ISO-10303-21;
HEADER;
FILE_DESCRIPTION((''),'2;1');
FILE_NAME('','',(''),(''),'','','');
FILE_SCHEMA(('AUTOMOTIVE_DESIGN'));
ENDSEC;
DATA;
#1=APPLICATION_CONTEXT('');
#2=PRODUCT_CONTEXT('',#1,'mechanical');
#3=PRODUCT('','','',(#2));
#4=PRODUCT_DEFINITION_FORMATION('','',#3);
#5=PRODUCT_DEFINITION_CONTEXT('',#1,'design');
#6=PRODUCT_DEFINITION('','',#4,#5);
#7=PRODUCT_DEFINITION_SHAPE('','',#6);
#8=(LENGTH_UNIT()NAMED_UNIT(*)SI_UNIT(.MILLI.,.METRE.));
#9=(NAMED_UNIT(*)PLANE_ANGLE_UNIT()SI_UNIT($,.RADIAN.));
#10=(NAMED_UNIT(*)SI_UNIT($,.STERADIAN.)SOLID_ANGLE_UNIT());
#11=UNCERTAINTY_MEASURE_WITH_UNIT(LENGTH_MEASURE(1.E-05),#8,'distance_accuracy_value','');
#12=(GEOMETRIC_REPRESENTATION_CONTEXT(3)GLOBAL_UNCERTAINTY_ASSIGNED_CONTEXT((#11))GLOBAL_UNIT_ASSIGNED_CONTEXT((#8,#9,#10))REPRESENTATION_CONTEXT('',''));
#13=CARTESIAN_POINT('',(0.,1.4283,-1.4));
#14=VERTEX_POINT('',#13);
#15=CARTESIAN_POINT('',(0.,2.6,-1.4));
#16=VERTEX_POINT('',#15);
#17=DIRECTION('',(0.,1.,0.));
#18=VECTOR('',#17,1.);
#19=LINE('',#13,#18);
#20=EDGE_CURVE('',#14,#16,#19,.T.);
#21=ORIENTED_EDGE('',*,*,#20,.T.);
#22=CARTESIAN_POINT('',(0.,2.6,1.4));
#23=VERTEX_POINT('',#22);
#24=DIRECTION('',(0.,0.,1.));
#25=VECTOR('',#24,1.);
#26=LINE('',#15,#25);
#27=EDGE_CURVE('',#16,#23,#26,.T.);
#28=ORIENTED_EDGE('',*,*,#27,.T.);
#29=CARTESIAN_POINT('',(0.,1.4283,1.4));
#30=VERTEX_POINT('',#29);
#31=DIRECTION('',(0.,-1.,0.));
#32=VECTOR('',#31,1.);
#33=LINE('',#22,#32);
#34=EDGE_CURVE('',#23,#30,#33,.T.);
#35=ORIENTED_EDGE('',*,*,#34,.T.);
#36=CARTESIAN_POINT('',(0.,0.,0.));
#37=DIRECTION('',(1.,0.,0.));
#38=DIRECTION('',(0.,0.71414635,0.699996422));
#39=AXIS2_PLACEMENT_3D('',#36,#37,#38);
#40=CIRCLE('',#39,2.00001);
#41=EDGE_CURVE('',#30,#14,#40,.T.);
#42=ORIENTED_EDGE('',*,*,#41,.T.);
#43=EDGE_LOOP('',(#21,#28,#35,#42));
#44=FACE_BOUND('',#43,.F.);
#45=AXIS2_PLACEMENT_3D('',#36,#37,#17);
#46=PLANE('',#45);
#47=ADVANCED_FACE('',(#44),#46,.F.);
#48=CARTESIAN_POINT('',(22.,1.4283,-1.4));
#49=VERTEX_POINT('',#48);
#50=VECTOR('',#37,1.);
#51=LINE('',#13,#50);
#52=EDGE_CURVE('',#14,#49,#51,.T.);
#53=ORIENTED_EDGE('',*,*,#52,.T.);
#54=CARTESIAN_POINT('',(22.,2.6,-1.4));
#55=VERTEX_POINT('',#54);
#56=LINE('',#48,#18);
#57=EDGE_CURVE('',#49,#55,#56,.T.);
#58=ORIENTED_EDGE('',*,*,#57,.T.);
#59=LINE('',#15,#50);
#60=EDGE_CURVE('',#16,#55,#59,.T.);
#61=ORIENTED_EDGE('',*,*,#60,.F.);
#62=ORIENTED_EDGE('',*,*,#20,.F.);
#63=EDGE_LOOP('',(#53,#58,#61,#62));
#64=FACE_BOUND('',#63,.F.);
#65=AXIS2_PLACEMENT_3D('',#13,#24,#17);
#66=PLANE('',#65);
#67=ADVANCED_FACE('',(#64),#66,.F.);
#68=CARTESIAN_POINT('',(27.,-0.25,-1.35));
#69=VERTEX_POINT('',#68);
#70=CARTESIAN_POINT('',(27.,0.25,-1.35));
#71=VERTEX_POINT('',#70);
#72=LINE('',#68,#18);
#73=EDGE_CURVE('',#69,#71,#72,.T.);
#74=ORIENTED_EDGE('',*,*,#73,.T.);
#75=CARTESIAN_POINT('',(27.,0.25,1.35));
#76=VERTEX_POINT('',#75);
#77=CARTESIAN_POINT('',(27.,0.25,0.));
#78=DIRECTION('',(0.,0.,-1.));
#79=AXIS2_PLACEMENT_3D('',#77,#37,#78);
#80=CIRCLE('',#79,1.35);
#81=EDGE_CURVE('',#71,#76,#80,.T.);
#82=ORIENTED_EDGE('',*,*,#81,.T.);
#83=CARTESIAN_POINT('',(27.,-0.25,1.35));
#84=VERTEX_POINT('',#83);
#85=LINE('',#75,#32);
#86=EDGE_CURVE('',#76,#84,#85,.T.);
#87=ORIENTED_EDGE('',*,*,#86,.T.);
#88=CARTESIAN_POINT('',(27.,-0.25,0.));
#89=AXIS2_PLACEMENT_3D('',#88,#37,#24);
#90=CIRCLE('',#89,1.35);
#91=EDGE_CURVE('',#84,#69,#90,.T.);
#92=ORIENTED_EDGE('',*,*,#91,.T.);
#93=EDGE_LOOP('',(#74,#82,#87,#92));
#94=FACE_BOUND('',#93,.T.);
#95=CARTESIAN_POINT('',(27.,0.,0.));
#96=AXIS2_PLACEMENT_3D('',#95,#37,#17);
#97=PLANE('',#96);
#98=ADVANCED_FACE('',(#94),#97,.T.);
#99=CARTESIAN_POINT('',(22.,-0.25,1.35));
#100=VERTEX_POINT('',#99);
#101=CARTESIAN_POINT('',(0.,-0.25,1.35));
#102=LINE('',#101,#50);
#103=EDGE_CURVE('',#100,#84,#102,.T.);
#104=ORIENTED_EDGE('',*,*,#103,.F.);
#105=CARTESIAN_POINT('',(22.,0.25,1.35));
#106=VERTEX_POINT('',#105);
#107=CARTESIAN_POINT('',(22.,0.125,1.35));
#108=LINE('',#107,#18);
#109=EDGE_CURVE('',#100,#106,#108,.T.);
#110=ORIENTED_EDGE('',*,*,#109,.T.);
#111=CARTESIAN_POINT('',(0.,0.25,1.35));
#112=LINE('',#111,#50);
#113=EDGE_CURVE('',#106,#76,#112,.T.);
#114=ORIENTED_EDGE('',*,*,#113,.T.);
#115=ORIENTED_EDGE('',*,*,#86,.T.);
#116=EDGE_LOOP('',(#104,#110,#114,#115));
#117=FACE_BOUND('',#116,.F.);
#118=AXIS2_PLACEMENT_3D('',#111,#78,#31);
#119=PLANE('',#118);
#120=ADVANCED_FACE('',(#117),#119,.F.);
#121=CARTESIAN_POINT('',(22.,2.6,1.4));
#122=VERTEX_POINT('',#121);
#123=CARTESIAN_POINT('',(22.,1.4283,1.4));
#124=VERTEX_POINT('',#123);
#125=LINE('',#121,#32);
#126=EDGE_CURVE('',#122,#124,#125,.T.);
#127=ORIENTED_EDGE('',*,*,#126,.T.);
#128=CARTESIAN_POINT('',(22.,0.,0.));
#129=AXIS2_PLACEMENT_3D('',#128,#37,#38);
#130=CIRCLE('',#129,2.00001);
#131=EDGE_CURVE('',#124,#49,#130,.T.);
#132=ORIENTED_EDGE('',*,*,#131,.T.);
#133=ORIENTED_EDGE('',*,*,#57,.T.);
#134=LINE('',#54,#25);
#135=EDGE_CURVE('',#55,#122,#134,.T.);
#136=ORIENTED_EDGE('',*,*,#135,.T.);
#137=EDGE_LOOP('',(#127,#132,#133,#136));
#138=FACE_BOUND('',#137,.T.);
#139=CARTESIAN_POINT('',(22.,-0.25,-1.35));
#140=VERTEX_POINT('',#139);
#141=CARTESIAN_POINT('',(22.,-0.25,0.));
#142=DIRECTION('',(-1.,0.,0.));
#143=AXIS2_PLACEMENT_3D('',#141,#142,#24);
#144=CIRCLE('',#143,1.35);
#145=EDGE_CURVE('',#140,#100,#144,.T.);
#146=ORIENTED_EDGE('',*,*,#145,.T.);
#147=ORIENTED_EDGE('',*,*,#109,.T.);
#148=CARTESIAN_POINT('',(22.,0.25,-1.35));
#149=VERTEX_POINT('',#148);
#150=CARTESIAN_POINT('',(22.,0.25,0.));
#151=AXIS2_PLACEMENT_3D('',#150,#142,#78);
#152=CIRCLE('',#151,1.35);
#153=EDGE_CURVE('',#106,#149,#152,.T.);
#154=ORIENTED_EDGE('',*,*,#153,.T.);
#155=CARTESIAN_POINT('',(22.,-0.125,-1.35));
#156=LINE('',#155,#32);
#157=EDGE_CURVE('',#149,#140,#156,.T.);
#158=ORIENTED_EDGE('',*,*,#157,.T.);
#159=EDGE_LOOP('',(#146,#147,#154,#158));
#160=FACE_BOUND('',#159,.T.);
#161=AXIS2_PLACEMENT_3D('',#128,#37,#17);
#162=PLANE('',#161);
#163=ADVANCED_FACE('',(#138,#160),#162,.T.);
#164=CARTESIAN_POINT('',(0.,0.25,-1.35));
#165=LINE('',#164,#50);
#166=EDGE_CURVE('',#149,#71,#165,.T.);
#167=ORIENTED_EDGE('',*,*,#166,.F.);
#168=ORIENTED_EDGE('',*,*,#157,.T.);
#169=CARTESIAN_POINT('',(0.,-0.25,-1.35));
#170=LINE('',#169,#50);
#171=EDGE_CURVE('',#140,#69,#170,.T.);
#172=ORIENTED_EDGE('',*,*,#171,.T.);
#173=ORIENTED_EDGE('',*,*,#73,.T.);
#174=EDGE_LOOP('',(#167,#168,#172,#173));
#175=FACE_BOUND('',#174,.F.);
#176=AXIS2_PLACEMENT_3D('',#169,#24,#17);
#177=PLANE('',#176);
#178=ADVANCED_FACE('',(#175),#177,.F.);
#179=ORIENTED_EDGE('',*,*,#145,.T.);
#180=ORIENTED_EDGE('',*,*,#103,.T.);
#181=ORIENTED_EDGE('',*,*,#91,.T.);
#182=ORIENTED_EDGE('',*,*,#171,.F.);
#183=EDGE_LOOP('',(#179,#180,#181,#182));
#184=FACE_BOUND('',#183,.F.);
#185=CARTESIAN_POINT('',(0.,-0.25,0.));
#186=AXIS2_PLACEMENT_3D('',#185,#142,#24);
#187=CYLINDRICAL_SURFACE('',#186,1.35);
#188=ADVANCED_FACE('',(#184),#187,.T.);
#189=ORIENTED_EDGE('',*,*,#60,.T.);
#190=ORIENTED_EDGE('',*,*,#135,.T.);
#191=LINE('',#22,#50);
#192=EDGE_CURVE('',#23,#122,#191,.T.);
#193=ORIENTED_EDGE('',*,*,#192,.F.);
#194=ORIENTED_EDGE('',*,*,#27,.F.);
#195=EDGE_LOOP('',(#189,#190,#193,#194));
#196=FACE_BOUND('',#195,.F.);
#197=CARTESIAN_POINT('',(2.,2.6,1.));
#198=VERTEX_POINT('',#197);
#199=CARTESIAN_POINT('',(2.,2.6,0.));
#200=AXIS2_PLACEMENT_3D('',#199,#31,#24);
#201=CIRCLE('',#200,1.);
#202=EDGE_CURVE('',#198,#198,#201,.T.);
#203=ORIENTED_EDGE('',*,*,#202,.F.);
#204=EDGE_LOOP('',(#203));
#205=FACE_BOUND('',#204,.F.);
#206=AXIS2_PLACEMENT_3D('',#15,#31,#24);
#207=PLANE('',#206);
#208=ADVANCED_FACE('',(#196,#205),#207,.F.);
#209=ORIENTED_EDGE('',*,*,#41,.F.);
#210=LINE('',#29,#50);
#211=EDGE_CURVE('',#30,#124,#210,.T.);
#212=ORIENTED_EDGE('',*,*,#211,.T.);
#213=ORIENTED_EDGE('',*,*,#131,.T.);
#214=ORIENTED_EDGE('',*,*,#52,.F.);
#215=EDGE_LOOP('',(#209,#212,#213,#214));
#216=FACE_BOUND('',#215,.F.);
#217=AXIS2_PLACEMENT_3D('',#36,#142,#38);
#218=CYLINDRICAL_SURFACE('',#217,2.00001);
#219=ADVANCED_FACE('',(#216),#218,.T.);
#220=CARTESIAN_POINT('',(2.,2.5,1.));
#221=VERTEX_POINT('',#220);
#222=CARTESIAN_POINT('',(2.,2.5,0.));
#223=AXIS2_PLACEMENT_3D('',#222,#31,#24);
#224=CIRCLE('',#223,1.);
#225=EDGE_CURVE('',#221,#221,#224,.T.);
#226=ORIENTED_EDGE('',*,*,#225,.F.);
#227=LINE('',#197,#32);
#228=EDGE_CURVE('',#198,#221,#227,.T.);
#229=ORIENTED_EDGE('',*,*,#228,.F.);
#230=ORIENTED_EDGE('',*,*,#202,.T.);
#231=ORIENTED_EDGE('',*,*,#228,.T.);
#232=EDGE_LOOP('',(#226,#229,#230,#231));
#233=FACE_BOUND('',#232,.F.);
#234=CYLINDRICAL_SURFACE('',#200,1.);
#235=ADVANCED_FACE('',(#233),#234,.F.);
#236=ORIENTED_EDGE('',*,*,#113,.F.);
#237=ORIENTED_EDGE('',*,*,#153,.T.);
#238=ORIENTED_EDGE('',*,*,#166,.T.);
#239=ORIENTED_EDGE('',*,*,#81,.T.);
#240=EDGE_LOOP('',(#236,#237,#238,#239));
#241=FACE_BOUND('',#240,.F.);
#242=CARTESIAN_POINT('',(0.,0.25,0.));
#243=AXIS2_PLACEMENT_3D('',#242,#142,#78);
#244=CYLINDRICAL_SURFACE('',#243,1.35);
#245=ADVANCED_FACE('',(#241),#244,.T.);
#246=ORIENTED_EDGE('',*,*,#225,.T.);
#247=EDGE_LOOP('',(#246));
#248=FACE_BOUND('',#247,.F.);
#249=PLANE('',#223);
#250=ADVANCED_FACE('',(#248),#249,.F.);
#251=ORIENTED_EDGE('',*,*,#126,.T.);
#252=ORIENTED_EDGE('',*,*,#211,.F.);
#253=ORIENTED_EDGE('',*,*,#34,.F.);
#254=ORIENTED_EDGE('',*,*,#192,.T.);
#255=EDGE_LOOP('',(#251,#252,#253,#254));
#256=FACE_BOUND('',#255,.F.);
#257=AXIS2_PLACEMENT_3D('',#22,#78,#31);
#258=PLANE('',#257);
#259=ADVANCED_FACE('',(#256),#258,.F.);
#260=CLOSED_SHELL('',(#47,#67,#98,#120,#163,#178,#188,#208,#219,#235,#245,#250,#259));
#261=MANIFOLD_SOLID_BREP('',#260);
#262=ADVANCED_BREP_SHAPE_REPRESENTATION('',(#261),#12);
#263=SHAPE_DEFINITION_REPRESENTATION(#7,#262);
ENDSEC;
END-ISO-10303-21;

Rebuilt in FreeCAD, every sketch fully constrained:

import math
import FreeCAD as App
import Part
import Sketcher

doc = App.newDocument("Part")
body = doc.addObject("PartDesign::Body", "Body")

sketch1 = body.newObject("Sketcher::SketchObject", "Sketch")
sketch1.AttachmentSupport = (doc.getObject("YZ_Plane"), [""])
sketch1.MapMode = "FlatFace"
sketch1.addGeometry(Part.LineSegment(App.Vector(2.6, 1.4, 0), App.Vector(1.4, 1.4, 0)), False)
sketch1.addGeometry(Part.ArcOfCircle(Part.Circle(App.Vector(0, 0, 0), App.Vector(0, 0, 1), 2), math.radians(44), math.radians(316)), False)
sketch1.addGeometry(Part.LineSegment(App.Vector(1.4, -1.4, 0), App.Vector(2.6, -1.4, 0)), False)
sketch1.addGeometry(Part.LineSegment(App.Vector(2.6, -1.4, 0), App.Vector(2.6, 1.4, 0)), False)
sketch1.addConstraint(Sketcher.Constraint("Coincident", 0, 2, 1, 1))
sketch1.addConstraint(Sketcher.Constraint("Coincident", 1, 2, 2, 1))
sketch1.addConstraint(Sketcher.Constraint("Coincident", 2, 2, 3, 1))
sketch1.addConstraint(Sketcher.Constraint("Coincident", 3, 2, 0, 1))
sketch1.addConstraint(Sketcher.Constraint("Horizontal", 0))
sketch1.addConstraint(Sketcher.Constraint("Horizontal", 2))
sketch1.addConstraint(Sketcher.Constraint("Vertical", 3))
sketch1.addConstraint(Sketcher.Constraint("Coincident", 1, 3, -1, 1))
sketch1.addConstraint(Sketcher.Constraint("Vertical", 0, 2, 1, 2))
sketch1.addConstraint(Sketcher.Constraint("Radius", 1, 2.0))
sketch1.addConstraint(Sketcher.Constraint("DistanceY", 3, 1, 3, 2, 2.8))
sketch1.addConstraint(Sketcher.Constraint("DistanceX", -1, 1, 2, 2, 2.6))
pad1 = body.newObject("PartDesign::Pad", "Pad")
pad1.Profile = sketch1
pad1.Length = 22

sketch2 = body.newObject("Sketcher::SketchObject", "Sketch001")
sketch2.AttachmentSupport = (doc.getObject("YZ_Plane"), [""])
sketch2.MapMode = "FlatFace"
sketch2.addGeometry(Part.ArcOfCircle(Part.Circle(App.Vector(0.2, 0, 0), App.Vector(0, 0, 1), 1.4), math.radians(-90), math.radians(90)), False)
sketch2.addGeometry(Part.LineSegment(App.Vector(0.2, 1.4, 0), App.Vector(-0.2, 1.4, 0)), False)
sketch2.addGeometry(Part.ArcOfCircle(Part.Circle(App.Vector(-0.2, 0, 0), App.Vector(0, 0, 1), 1.4), math.radians(90), math.radians(270)), False)
sketch2.addGeometry(Part.LineSegment(App.Vector(-0.2, -1.4, 0), App.Vector(0.2, -1.4, 0)), False)
sketch2.addConstraint(Sketcher.Constraint("Tangent", 0, 2, 1, 1))
sketch2.addConstraint(Sketcher.Constraint("Tangent", 1, 2, 2, 1))
sketch2.addConstraint(Sketcher.Constraint("Tangent", 2, 2, 3, 1))
sketch2.addConstraint(Sketcher.Constraint("Tangent", 3, 2, 0, 1))
sketch2.addConstraint(Sketcher.Constraint("Horizontal", 1))
sketch2.addConstraint(Sketcher.Constraint("Horizontal", 3))
sketch2.addConstraint(Sketcher.Constraint("Symmetric", 0, 3, 2, 3, -1, 1))
sketch2.addConstraint(Sketcher.Constraint("Radius", 0, 1.35))
sketch2.addConstraint(Sketcher.Constraint("DistanceX", 1, 2, 1, 1, 0.5))
pad2 = body.newObject("PartDesign::Pad", "Pad001")
pad2.Profile = sketch2
pad2.Length = 27

sketch3 = body.newObject("Sketcher::SketchObject", "Sketch002")
sketch3.AttachmentSupport = (doc.getObject("XZ_Plane"), [""])
sketch3.MapMode = "FlatFace"
sketch3.AttachmentOffset = App.Placement(App.Vector(0, 0, -2.6), App.Rotation())
sketch3.addGeometry(Part.Circle(App.Vector(2, 0, 0), App.Vector(0, 0, 1), 1), False)
sketch3.addConstraint(Sketcher.Constraint("PointOnObject", 0, 3, -1))
sketch3.addConstraint(Sketcher.Constraint("Diameter", 0, 2.0))
sketch3.addConstraint(Sketcher.Constraint("DistanceX", -1, 1, 0, 3, 2.0))
doc.recompute()
hole = body.newObject("PartDesign::Hole", "Hole")
hole.Profile = sketch3
hole.ThreadType = "None"
hole.Diameter = 2
hole.DepthType = "Dimension"
hole.Depth = 0.1
hole.DrillPoint = "Flat"
hole.Reversed = True

doc.recompute()
